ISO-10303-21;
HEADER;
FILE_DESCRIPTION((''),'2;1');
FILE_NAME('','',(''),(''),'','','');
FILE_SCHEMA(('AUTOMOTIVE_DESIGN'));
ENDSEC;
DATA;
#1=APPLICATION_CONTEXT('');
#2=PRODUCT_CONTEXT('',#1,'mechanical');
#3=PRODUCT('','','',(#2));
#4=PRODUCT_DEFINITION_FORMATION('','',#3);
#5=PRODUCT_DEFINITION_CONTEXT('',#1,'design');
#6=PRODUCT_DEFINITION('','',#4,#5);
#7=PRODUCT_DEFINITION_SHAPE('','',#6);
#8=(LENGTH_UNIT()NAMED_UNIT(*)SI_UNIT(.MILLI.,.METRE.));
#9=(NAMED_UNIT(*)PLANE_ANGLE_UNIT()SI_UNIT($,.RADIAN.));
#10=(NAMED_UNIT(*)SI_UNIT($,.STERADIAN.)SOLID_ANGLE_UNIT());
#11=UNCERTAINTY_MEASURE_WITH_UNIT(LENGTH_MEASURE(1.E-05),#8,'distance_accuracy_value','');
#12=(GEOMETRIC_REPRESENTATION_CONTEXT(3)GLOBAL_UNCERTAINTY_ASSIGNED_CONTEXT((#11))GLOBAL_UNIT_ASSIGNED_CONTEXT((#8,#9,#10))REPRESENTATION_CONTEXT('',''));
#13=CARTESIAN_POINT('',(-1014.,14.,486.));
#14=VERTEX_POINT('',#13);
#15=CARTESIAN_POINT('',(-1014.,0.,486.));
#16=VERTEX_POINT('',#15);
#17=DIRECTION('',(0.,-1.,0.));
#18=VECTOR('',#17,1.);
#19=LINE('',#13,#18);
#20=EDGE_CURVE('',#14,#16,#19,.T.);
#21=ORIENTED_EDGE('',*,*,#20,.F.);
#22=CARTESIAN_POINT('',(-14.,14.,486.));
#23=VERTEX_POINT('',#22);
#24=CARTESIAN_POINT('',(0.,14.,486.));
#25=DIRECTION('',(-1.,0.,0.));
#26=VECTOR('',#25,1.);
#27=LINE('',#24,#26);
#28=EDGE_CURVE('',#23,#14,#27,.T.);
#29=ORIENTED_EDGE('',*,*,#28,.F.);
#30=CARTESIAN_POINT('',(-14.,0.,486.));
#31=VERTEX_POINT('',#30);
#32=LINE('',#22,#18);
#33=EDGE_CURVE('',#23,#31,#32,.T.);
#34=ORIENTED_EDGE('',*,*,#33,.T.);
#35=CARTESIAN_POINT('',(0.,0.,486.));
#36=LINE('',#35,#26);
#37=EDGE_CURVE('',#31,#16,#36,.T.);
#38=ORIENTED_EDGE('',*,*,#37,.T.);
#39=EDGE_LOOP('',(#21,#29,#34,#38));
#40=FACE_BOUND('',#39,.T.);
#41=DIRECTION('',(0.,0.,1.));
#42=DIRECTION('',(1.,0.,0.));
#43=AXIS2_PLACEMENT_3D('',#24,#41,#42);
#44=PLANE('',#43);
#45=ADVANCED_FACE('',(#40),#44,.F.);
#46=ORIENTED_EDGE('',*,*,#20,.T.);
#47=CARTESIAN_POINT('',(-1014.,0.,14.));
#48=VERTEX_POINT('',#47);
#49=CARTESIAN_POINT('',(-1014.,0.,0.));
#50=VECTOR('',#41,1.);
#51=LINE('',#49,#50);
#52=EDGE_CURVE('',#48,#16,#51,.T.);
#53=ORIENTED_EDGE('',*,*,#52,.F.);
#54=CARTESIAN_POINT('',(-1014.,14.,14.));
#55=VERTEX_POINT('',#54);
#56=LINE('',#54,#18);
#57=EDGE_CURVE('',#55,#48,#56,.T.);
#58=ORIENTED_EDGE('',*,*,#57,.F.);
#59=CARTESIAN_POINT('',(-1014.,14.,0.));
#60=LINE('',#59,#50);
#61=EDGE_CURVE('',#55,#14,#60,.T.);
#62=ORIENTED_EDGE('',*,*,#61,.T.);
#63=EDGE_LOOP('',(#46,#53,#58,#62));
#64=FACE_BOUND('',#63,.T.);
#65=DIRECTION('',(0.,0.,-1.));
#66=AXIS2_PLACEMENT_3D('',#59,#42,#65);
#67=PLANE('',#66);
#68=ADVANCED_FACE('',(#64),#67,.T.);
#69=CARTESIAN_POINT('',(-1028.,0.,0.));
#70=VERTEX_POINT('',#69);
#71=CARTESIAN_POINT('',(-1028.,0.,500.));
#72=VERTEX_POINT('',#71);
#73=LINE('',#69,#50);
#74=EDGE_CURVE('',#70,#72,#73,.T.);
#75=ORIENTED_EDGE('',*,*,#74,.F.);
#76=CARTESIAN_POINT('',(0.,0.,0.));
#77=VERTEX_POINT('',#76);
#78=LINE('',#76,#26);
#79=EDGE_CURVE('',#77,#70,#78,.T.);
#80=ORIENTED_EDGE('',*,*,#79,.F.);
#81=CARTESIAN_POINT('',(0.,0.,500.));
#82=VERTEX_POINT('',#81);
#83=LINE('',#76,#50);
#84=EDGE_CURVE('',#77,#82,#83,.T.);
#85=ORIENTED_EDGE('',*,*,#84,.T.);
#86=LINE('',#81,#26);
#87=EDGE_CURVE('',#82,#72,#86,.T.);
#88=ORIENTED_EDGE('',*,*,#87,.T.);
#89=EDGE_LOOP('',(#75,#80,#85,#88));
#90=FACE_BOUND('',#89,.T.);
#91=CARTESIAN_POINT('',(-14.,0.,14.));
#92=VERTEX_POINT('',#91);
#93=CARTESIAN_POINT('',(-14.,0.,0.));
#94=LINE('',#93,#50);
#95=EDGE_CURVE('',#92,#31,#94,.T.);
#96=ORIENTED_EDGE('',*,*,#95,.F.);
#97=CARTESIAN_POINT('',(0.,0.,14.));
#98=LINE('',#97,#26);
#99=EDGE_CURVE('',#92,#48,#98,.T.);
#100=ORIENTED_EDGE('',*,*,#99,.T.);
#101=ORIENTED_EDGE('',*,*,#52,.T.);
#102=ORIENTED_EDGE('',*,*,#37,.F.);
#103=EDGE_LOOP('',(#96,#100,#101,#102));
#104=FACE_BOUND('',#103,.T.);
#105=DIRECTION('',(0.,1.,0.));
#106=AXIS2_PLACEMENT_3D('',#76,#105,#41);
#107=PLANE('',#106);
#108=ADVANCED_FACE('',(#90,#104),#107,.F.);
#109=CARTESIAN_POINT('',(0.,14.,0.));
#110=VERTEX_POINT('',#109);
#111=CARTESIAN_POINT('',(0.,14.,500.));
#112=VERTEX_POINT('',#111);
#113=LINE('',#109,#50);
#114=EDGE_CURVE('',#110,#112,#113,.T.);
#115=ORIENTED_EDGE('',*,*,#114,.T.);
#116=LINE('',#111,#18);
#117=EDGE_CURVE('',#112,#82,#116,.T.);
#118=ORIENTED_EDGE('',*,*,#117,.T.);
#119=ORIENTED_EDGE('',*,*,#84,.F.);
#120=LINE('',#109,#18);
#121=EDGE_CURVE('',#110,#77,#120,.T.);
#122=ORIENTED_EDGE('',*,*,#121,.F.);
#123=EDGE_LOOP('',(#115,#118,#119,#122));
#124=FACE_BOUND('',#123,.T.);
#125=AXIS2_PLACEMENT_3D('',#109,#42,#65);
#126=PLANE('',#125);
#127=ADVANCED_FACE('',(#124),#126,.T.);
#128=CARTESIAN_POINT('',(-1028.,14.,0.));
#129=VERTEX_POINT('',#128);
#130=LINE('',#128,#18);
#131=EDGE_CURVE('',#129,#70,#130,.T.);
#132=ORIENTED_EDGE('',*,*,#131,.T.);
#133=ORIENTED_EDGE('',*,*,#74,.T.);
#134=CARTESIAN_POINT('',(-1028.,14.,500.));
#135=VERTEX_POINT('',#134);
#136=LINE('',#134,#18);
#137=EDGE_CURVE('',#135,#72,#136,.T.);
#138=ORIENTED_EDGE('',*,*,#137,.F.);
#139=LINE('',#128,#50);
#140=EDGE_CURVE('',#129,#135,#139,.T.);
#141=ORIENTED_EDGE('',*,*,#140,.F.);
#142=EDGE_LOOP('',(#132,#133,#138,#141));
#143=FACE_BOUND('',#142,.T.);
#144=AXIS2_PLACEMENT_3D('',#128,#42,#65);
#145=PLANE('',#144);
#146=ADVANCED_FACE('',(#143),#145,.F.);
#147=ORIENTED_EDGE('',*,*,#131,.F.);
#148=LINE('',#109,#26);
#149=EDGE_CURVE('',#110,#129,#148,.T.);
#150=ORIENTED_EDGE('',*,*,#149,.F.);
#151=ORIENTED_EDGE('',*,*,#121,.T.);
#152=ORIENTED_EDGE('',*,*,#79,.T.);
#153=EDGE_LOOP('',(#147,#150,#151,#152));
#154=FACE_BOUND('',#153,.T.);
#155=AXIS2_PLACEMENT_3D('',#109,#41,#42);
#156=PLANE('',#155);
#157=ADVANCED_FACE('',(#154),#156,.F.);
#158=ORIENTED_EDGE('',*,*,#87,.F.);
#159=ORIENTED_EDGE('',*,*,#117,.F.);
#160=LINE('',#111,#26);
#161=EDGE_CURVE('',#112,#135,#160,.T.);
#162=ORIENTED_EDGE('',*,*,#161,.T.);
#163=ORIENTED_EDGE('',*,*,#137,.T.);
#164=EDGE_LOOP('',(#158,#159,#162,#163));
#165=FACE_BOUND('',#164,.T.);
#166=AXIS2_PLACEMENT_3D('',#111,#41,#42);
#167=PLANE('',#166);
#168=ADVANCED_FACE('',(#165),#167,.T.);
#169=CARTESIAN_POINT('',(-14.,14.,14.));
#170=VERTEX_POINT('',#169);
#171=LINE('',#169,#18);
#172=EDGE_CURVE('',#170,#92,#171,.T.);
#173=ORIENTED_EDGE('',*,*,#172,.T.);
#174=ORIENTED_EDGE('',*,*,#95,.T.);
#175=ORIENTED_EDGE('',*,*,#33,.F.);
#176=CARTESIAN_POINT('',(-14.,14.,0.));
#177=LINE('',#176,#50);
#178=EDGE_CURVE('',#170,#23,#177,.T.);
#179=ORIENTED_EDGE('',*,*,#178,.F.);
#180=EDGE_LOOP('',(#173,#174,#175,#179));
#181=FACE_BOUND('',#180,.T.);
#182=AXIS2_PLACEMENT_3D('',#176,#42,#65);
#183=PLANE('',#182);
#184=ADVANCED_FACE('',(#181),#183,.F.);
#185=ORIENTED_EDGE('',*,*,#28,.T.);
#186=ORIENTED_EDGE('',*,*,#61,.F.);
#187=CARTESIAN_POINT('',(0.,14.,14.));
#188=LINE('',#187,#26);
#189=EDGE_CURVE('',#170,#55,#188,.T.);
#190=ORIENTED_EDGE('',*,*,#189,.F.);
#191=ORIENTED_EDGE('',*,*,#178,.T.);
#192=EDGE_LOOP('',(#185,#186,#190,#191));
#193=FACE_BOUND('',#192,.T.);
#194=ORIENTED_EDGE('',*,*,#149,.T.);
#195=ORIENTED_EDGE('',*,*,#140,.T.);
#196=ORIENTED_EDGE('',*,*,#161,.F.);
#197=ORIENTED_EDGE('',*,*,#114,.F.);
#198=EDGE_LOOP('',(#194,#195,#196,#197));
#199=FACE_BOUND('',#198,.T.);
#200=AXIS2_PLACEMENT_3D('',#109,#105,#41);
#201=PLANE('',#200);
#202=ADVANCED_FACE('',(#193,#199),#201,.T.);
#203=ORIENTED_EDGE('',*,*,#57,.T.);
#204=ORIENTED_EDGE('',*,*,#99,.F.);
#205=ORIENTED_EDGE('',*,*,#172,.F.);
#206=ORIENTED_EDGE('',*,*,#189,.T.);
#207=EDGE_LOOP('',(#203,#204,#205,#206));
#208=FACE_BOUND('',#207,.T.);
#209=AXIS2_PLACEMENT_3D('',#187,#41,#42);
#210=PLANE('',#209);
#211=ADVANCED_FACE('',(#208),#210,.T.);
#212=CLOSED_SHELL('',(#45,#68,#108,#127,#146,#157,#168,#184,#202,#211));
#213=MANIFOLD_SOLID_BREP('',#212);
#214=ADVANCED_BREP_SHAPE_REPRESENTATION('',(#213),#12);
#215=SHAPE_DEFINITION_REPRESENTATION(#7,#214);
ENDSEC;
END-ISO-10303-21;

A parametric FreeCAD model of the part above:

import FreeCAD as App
import Part
import Sketcher
from FreeCAD import Vector

doc = App.newDocument("Part")
body = doc.addObject("PartDesign::Body", "Body")

sketch1 = body.newObject("Sketcher::SketchObject", "Sketch")
sketch1.AttachmentSupport = (doc.getObject("XZ_Plane"), [""])
sketch1.MapMode = "FlatFace"
sketch1.addGeometry(Part.LineSegment(Vector(-1028, 0, 0), Vector(-1028, 500, 0)), False)
sketch1.addGeometry(Part.LineSegment(Vector(-1028, 500, 0), Vector(0, 500, 0)), False)
sketch1.addGeometry(Part.LineSegment(Vector(0, 500, 0), Vector(0, 0, 0)), False)
sketch1.addGeometry(Part.LineSegment(Vector(0, 0, 0), Vector(-1028, 0, 0)), False)
sketch1.addGeometry(Part.LineSegment(Vector(-14, 486, 0), Vector(-1014, 486, 0)), False)
sketch1.addGeometry(Part.LineSegment(Vector(-1014, 486, 0), Vector(-1014, 14, 0)), False)
sketch1.addGeometry(Part.LineSegment(Vector(-1014, 14, 0), Vector(-14, 14, 0)), False)
sketch1.addGeometry(Part.LineSegment(Vector(-14, 14, 0), Vector(-14, 486, 0)), False)
sketch1.addConstraint(Sketcher.Constraint("Coincident", 0, 2, 1, 1))
sketch1.addConstraint(Sketcher.Constraint("Coincident", 1, 2, 2, 1))
sketch1.addConstraint(Sketcher.Constraint("Coincident", 2, 2, 3, 1))
sketch1.addConstraint(Sketcher.Constraint("Coincident", 3, 2, 0, 1))
sketch1.addConstraint(Sketcher.Constraint("Coincident", 4, 2, 5, 1))
sketch1.addConstraint(Sketcher.Constraint("Coincident", 5, 2, 6, 1))
sketch1.addConstraint(Sketcher.Constraint("Coincident", 6, 2, 7, 1))
sketch1.addConstraint(Sketcher.Constraint("Coincident", 7, 2, 4, 1))
sketch1.addConstraint(Sketcher.Constraint("Vertical", 0))
sketch1.addConstraint(Sketcher.Constraint("Horizontal", 1))
sketch1.addConstraint(Sketcher.Constraint("Vertical", 2))
sketch1.addConstraint(Sketcher.Constraint("Horizontal", 3))
sketch1.addConstraint(Sketcher.Constraint("Horizontal", 4))
sketch1.addConstraint(Sketcher.Constraint("Vertical", 5))
sketch1.addConstraint(Sketcher.Constraint("Horizontal", 6))
sketch1.addConstraint(Sketcher.Constraint("Vertical", 7))
sketch1.addConstraint(Sketcher.Constraint("Coincident", 2, 2, -1, 1))
sketch1.addConstraint(Sketcher.Constraint("DistanceX", 1, 1, 1, 2, 1028.0))
sketch1.addConstraint(Sketcher.Constraint("DistanceX", 4, 2, 4, 1, 1000.0))
sketch1.addConstraint(Sketcher.Constraint("DistanceY", 0, 1, 0, 2, 500.0))
sketch1.addConstraint(Sketcher.Constraint("DistanceY", 5, 2, 5, 1, 472.0))
sketch1.addConstraint(Sketcher.Constraint("DistanceX", 4, 2, -1, 1, 1014.0))
sketch1.addConstraint(Sketcher.Constraint("DistanceY", -1, 1, 4, 2, 486.0))
pad1 = body.newObject("PartDesign::Pad", "Pad")
pad1.Profile = sketch1
pad1.Length = 14
pad1.Reversed = True

doc.recompute()
